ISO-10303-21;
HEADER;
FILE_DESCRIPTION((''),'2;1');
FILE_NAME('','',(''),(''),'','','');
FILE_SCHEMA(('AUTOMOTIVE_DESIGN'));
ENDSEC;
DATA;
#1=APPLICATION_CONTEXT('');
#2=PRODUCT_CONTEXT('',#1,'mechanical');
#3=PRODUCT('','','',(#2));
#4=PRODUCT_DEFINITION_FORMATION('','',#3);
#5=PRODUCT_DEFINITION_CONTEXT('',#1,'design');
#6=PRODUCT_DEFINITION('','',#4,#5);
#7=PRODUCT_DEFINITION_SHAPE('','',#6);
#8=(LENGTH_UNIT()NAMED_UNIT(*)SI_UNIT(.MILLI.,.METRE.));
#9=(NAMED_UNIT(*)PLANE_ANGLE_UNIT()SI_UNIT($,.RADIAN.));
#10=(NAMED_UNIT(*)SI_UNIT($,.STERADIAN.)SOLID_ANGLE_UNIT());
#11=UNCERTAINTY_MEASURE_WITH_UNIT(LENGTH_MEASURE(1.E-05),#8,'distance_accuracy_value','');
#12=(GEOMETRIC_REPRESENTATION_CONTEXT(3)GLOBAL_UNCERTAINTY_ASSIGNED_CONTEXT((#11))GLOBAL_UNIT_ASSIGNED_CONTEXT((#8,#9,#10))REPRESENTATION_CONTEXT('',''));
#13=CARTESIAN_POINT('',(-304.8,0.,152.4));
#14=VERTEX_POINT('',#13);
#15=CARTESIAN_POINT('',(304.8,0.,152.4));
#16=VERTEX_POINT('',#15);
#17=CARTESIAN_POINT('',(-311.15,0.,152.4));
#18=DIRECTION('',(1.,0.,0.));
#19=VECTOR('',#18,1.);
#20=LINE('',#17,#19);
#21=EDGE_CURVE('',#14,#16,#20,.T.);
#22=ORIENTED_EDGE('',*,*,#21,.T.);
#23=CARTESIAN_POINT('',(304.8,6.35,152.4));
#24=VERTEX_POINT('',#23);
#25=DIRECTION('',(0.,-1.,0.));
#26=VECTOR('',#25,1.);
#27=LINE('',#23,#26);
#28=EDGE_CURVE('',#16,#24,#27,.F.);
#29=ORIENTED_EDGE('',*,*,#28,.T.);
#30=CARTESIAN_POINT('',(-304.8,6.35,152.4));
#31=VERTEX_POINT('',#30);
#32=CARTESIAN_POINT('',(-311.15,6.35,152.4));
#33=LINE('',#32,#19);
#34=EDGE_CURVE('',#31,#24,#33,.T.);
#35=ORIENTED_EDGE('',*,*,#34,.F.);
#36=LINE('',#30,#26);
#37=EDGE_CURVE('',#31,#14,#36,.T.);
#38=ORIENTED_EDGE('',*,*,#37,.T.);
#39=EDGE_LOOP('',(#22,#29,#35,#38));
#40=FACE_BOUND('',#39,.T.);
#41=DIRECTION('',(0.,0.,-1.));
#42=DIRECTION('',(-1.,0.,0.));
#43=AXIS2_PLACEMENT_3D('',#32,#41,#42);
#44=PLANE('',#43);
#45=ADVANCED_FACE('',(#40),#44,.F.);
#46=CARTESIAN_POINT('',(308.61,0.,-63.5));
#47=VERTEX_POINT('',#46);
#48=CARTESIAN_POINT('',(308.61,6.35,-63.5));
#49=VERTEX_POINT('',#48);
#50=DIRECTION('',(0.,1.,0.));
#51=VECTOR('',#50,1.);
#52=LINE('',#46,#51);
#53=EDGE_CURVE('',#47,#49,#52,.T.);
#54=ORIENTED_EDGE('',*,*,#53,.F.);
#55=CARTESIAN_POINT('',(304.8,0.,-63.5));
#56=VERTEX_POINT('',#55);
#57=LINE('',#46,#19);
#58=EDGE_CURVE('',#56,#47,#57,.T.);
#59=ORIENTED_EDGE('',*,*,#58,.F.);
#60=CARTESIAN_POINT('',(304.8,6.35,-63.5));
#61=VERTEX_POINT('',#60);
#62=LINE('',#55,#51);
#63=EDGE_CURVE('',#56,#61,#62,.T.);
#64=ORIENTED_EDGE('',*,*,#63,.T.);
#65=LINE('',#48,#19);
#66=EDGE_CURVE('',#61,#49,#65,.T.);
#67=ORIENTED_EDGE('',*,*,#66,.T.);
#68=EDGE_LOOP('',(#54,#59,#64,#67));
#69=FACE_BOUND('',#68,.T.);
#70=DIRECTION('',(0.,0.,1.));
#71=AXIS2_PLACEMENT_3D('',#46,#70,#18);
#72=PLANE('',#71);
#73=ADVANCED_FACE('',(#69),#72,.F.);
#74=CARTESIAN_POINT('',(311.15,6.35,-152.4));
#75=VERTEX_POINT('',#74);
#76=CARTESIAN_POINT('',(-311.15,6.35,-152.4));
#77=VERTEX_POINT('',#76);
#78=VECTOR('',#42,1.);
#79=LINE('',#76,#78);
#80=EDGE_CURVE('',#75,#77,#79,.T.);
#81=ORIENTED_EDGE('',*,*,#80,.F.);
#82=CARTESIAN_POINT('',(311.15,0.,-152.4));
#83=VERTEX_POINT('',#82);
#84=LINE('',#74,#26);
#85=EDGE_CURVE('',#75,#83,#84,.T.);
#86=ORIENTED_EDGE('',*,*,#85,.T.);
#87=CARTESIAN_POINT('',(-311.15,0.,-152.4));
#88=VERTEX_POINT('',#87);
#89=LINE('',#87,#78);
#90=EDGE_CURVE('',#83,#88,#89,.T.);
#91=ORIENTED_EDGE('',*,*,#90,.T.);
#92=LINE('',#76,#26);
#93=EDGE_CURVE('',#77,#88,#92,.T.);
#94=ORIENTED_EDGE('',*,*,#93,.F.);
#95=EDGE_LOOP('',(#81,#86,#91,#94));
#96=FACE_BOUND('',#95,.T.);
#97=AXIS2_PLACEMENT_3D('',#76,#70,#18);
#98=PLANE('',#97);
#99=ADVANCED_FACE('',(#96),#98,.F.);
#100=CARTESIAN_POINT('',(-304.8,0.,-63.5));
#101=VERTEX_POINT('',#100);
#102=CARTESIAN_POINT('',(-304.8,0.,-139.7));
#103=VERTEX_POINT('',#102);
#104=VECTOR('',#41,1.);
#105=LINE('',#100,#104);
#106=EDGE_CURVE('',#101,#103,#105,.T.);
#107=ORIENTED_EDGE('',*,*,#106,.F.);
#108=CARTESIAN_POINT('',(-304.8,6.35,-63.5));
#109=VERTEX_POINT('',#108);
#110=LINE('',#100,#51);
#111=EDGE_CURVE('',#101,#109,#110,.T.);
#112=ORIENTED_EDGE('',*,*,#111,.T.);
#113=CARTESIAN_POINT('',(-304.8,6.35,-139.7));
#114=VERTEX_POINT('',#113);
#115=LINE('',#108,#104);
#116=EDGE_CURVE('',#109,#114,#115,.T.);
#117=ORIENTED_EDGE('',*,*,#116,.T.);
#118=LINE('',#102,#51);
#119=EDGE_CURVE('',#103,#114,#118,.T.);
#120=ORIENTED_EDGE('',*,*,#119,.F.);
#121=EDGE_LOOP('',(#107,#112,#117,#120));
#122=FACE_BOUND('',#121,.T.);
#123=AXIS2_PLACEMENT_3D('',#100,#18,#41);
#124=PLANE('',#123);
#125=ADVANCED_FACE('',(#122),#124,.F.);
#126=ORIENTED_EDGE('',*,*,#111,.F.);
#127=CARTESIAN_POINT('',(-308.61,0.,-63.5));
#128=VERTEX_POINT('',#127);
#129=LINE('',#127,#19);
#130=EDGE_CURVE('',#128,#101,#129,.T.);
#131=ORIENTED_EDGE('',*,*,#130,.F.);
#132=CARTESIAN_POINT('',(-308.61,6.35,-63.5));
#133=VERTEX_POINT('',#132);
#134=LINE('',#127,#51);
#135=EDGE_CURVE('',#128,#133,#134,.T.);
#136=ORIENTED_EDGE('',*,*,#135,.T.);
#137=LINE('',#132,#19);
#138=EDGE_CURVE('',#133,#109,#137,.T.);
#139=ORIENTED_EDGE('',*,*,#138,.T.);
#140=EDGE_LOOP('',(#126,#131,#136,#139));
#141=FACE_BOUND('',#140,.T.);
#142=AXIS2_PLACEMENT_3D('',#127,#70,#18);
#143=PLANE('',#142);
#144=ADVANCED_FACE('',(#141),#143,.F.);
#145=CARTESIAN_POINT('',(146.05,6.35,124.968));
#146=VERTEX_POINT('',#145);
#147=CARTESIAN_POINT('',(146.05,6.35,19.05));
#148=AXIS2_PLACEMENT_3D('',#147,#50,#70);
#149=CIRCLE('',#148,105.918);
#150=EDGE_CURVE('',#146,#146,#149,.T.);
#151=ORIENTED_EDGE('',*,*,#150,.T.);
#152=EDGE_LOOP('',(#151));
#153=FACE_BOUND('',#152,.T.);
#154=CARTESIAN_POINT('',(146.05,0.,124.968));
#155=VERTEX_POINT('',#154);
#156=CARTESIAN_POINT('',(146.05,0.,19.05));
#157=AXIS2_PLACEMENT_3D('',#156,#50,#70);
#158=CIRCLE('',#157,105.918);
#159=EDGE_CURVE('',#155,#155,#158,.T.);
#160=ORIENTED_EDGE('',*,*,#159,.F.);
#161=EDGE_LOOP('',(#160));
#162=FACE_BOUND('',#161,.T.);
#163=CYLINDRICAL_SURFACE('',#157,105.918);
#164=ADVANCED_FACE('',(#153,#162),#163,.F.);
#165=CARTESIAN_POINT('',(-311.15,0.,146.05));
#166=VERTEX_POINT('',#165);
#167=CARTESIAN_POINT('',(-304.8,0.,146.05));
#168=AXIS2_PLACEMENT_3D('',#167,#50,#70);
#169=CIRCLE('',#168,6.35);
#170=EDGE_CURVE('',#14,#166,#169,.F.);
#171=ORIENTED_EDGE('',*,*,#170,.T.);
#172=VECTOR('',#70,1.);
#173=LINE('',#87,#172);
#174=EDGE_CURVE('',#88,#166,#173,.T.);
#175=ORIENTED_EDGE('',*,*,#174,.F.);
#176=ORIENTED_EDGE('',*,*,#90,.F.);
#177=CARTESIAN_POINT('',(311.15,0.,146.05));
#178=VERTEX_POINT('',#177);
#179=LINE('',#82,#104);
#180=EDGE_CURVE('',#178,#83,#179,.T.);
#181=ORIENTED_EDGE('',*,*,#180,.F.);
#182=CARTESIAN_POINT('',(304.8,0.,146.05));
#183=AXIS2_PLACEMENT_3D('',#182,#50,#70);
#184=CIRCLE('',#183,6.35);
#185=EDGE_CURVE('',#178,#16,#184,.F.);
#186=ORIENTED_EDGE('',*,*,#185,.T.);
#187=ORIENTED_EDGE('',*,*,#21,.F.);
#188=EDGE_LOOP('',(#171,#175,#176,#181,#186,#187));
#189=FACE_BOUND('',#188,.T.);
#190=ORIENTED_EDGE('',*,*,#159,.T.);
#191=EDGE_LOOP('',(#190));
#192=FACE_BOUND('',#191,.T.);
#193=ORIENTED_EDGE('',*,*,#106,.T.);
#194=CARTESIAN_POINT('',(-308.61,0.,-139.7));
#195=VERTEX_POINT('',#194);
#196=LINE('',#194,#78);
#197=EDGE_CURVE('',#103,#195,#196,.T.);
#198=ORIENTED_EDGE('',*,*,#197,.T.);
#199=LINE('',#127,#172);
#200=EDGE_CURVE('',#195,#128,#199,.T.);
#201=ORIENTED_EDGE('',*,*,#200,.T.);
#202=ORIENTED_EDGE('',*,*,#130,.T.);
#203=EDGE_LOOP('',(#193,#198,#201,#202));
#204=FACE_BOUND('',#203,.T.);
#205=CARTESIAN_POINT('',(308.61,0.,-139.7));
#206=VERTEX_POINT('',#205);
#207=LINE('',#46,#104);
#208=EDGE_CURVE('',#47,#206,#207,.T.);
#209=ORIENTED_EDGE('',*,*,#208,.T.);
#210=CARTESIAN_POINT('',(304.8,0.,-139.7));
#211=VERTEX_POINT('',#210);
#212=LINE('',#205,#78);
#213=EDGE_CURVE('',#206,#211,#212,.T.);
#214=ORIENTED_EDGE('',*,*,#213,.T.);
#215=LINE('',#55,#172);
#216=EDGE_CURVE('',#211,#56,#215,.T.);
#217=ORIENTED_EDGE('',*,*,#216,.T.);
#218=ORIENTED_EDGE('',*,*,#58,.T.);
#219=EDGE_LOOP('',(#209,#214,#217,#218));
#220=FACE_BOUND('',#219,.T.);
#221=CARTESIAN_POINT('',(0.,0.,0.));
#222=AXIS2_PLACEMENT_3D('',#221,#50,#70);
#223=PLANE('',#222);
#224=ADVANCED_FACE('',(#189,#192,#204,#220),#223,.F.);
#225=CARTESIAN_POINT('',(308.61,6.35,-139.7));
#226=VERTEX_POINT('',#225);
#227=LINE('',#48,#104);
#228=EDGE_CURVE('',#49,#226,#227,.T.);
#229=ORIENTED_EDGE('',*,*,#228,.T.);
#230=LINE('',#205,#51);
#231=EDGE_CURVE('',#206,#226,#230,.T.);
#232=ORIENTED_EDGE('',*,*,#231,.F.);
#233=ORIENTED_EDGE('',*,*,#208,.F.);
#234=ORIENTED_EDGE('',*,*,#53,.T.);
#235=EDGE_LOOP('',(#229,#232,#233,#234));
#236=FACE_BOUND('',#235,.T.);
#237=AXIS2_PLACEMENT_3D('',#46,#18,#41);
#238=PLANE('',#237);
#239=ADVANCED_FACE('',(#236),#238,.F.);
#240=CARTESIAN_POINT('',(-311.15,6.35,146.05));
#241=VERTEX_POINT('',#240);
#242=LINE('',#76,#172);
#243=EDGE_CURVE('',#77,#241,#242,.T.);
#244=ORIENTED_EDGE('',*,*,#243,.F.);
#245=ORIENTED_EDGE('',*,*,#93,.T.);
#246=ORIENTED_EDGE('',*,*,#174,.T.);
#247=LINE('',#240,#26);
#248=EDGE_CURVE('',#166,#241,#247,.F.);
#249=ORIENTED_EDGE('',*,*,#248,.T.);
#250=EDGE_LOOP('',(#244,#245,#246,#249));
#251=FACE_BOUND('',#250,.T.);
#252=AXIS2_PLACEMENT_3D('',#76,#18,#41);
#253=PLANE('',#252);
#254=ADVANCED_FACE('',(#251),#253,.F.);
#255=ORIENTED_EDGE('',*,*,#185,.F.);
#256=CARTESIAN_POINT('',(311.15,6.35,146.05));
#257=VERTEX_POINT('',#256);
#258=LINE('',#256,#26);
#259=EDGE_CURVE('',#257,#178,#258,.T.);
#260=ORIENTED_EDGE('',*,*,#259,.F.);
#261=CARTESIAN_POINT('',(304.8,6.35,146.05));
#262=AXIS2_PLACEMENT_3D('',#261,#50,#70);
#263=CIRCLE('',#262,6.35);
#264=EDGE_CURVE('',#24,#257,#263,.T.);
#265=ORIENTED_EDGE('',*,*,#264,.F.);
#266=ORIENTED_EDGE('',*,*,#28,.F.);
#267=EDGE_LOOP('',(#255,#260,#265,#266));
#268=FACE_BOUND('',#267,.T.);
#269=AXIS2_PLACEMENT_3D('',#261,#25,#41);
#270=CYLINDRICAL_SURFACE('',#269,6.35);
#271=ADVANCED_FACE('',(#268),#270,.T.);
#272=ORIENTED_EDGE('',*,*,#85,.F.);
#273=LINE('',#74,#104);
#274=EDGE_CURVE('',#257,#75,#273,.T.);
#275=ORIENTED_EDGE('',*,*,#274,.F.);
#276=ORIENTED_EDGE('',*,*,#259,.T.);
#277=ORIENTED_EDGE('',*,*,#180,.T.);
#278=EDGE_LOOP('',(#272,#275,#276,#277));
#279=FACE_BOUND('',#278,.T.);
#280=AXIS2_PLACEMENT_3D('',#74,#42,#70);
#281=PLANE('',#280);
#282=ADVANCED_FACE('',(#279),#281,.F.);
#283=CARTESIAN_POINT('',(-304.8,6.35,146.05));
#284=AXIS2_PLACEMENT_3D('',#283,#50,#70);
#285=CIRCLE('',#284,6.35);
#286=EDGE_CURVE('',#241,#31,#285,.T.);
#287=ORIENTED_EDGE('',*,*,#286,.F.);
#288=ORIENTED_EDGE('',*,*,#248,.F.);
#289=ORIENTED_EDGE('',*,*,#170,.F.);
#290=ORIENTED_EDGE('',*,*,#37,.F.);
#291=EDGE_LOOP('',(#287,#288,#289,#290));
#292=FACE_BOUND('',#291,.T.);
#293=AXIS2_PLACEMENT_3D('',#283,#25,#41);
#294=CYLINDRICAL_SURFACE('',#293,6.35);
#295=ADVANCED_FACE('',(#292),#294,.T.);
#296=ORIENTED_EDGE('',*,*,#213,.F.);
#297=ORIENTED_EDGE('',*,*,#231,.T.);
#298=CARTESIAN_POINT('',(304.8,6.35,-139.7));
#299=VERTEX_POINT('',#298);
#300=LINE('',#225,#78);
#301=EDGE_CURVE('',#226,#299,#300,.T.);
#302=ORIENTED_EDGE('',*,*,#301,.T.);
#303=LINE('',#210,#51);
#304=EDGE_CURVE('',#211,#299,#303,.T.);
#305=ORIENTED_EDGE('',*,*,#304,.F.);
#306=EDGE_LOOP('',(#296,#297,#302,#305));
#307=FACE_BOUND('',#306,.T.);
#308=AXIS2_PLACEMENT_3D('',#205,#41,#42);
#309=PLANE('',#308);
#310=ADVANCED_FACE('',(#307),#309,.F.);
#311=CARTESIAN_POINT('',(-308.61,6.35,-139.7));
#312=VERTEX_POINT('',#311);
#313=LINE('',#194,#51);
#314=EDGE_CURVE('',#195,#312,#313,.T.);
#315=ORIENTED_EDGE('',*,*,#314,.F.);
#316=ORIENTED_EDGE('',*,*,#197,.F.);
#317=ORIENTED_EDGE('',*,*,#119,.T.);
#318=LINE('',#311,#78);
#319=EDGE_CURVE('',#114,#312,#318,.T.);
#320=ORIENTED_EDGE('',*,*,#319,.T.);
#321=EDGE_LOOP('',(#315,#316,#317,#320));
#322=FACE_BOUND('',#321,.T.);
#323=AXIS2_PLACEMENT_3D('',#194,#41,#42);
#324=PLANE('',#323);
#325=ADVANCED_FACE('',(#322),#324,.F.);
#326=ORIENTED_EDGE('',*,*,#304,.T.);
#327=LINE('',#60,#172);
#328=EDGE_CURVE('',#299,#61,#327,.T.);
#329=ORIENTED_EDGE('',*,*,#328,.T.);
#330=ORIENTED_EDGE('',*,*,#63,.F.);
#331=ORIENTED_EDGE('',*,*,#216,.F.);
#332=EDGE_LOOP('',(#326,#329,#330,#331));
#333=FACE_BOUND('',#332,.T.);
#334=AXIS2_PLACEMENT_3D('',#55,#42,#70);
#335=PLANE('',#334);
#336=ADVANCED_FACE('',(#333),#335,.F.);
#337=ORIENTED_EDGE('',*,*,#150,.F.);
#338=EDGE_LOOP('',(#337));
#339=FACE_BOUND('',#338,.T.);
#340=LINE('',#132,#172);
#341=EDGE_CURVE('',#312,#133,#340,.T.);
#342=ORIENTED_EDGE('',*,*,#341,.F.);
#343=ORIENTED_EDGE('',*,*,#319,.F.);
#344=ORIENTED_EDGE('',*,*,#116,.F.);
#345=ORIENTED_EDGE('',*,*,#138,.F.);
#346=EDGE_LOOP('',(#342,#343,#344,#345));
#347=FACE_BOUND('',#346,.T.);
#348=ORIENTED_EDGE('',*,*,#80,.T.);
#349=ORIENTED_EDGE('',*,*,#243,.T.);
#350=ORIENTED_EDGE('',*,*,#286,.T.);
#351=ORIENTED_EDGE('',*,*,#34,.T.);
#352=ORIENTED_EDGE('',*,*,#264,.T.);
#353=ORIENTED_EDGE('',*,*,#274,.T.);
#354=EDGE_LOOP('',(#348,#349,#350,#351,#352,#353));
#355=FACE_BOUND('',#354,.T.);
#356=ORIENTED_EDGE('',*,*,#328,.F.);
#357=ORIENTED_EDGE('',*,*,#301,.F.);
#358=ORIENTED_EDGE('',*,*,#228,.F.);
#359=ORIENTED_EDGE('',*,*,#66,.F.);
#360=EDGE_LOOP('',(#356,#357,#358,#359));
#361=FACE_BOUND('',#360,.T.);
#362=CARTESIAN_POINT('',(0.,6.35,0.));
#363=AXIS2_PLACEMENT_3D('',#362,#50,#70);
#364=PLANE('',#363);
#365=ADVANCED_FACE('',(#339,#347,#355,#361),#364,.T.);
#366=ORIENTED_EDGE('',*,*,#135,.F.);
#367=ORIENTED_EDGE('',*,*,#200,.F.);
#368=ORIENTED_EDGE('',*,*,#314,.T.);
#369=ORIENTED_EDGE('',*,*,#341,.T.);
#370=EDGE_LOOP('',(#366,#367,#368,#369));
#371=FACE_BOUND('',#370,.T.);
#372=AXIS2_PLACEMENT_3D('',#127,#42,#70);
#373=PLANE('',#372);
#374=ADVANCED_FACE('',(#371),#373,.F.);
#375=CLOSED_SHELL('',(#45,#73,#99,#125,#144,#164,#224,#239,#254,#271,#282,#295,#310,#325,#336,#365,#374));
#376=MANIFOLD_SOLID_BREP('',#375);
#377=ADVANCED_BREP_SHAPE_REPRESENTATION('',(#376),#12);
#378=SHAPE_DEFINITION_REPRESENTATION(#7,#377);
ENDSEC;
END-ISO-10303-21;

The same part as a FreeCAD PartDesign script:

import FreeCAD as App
import Part
import Sketcher
from FreeCAD import Vector
Q = App.Units.Quantity


def edges_at(feature, points):
    """Names of the edges that pass closest to the given points."""
    edges = feature.Shape.Edges
    near = lambda p: min(range(len(edges)), key=lambda i: edges[i].distToShape(Part.Vertex(*p))[0])
    return sorted({f"Edge{near(p) + 1}" for p in points})


def add_polygon(sketch, points):
    """Adds a closed chain of lines whose ends are joined by coincident constraints."""
    first, n = sketch.GeometryCount, len(points)
    for a, b in zip(points, points[1:] + points[:1]):
        sketch.addGeometry(Part.LineSegment(App.Vector(*a, 0), App.Vector(*b, 0)), False)
    for i in range(n):
        sketch.addConstraint(Sketcher.Constraint("Coincident", first + i, 2, first + (i + 1) % n, 1))

doc = App.newDocument("Part")
params = doc.addObject("Spreadsheet::Sheet", "Params")
for row, (alias, value) in enumerate([
    ("sketch1_height", "12 in"),
    ("sketch1_width", "24.5 in"),
    ("pad1_length", "0.25 in"),
    ("fillet_radius", "0.25 in"),
    ("sketch2_height", "3 in"),
    ("sketch2_width", "0.15 in"),
    ("sketch3_diameter", "8.34 in"),
], start=1):
    params.set(f"A{row}", alias)
    params.set(f"B{row}", "=" + value)
    params.setAlias(f"B{row}", alias)

body = doc.addObject("PartDesign::Body", "Body")

# Sketch on XZ plane
sketch1 = body.newObject("Sketcher::SketchObject", "Sketch")
sketch1.AttachmentSupport = (doc.getObject("XZ_Plane"), [""])
sketch1.MapMode = "FlatFace"
add_polygon(sketch1, [(-311, -152), (-311, 152), (311, 152), (311, -152)])  # lines 0-3
sketch1.addConstraint(Sketcher.Constraint("Vertical", 0))
sketch1.addConstraint(Sketcher.Constraint("Horizontal", 1))
sketch1.addConstraint(Sketcher.Constraint("Vertical", 2))
sketch1.addConstraint(Sketcher.Constraint("Horizontal", 3))
sketch1.addConstraint(Sketcher.Constraint("Symmetric", 0, 2, 2, 2, -1, 1))
sketch1.addConstraint(Sketcher.Constraint("DistanceY", 0, 1, 0, 2, Q("12 in")))
sketch1.addConstraint(Sketcher.Constraint("DistanceX", 1, 1, 1, 2, Q("24.5 in")))
sketch1.setExpression("Constraints[9]", "Params.sketch1_height")
sketch1.setExpression("Constraints[10]", "Params.sketch1_width")
pad1 = body.newObject("PartDesign::Pad", "Pad")
pad1.Profile = sketch1
pad1.setExpression("Length", "Params.pad1_length")
pad1.Reversed = True
doc.recompute()

fillet = body.newObject("PartDesign::Fillet", "Fillet")
fillet.Base = (pad1, edges_at(pad1, [(311.15, 3.175, 152.4), (-311.15, 3.175, 152.4)]))
fillet.setExpression("Radius", "Params.fillet_radius")

# Sketch on XZ plane
sketch2 = body.newObject("Sketcher::SketchObject", "Sketch001")
sketch2.AttachmentSupport = (doc.getObject("XZ_Plane"), [""])
sketch2.MapMode = "FlatFace"
sketch2.AttachmentOffset = App.Placement(Vector(0, 0, -0.25 * 25.4), App.Rotation())
add_polygon(sketch2, [(-308.6, -139.7), (-308.6, -63.5), (-304.8, -63.5), (-304.8, -139.7)])  # lines 0-3
add_polygon(sketch2, [(304.8, -139.7), (304.8, -63.5), (308.6, -63.5), (308.6, -139.7)])  # lines 4-7
sketch2.addConstraint(Sketcher.Constraint("Vertical", 0))
sketch2.addConstraint(Sketcher.Constraint("Horizontal", 1))
sketch2.addConstraint(Sketcher.Constraint("Vertical", 2))
sketch2.addConstraint(Sketcher.Constraint("Horizontal", 3))
sketch2.addConstraint(Sketcher.Constraint("Vertical", 4))
sketch2.addConstraint(Sketcher.Constraint("Horizontal", 5))
sketch2.addConstraint(Sketcher.Constraint("Vertical", 6))
sketch2.addConstraint(Sketcher.Constraint("Horizontal", 7))
sketch2.addConstraint(Sketcher.Constraint("Symmetric", 1, 2, 4, 2, -2))
sketch2.addConstraint(Sketcher.Constraint("Symmetric", 3, 2, 6, 2, -2))
sketch2.addConstraint(Sketcher.Constraint("DistanceY", 0, 1, 0, 2, Q("3 in")))
sketch2.addConstraint(Sketcher.Constraint("DistanceX", 1, 2, -1, 1, Q("12 in")))
sketch2.addConstraint(Sketcher.Constraint("DistanceX", 1, 1, 1, 2, Q("0.15 in")))
sketch2.addConstraint(Sketcher.Constraint("DistanceY", 0, 2, -1, 1, Q("2.5 in")))
sketch2.setExpression("Constraints[18]", "Params.sketch2_height")
sketch2.setExpression("Constraints[20]", "Params.sketch2_width")
pocket1 = body.newObject("PartDesign::Pocket", "Pocket")
pocket1.Profile = sketch2
pocket1.Type = "ThroughAll"
pocket1.Reversed = True

# Sketch on XZ plane
sketch3 = body.newObject("Sketcher::SketchObject", "Sketch002")
sketch3.AttachmentSupport = (doc.getObject("XZ_Plane"), [""])
sketch3.MapMode = "FlatFace"
sketch3.AttachmentOffset = App.Placement(Vector(0, 0, -0.25 * 25.4), App.Rotation())
sketch3.addGeometry(Part.Circle(Vector(146, 19, 0), Vector(0, 0, 1), 106), False)
sketch3.addConstraint(Sketcher.Constraint("Diameter", 0, Q("8.34 in")))
sketch3.addConstraint(Sketcher.Constraint("DistanceX", -1, 1, 0, 3, Q("5.75 in")))
sketch3.addConstraint(Sketcher.Constraint("DistanceY", -1, 1, 0, 3, Q("0.75 in")))
sketch3.setExpression("Constraints[0]", "Params.sketch3_diameter")
pocket2 = body.newObject("PartDesign::Pocket", "Pocket001")
pocket2.Profile = sketch3
pocket2.Type = "ThroughAll"
pocket2.Reversed = True

doc.recompute()
